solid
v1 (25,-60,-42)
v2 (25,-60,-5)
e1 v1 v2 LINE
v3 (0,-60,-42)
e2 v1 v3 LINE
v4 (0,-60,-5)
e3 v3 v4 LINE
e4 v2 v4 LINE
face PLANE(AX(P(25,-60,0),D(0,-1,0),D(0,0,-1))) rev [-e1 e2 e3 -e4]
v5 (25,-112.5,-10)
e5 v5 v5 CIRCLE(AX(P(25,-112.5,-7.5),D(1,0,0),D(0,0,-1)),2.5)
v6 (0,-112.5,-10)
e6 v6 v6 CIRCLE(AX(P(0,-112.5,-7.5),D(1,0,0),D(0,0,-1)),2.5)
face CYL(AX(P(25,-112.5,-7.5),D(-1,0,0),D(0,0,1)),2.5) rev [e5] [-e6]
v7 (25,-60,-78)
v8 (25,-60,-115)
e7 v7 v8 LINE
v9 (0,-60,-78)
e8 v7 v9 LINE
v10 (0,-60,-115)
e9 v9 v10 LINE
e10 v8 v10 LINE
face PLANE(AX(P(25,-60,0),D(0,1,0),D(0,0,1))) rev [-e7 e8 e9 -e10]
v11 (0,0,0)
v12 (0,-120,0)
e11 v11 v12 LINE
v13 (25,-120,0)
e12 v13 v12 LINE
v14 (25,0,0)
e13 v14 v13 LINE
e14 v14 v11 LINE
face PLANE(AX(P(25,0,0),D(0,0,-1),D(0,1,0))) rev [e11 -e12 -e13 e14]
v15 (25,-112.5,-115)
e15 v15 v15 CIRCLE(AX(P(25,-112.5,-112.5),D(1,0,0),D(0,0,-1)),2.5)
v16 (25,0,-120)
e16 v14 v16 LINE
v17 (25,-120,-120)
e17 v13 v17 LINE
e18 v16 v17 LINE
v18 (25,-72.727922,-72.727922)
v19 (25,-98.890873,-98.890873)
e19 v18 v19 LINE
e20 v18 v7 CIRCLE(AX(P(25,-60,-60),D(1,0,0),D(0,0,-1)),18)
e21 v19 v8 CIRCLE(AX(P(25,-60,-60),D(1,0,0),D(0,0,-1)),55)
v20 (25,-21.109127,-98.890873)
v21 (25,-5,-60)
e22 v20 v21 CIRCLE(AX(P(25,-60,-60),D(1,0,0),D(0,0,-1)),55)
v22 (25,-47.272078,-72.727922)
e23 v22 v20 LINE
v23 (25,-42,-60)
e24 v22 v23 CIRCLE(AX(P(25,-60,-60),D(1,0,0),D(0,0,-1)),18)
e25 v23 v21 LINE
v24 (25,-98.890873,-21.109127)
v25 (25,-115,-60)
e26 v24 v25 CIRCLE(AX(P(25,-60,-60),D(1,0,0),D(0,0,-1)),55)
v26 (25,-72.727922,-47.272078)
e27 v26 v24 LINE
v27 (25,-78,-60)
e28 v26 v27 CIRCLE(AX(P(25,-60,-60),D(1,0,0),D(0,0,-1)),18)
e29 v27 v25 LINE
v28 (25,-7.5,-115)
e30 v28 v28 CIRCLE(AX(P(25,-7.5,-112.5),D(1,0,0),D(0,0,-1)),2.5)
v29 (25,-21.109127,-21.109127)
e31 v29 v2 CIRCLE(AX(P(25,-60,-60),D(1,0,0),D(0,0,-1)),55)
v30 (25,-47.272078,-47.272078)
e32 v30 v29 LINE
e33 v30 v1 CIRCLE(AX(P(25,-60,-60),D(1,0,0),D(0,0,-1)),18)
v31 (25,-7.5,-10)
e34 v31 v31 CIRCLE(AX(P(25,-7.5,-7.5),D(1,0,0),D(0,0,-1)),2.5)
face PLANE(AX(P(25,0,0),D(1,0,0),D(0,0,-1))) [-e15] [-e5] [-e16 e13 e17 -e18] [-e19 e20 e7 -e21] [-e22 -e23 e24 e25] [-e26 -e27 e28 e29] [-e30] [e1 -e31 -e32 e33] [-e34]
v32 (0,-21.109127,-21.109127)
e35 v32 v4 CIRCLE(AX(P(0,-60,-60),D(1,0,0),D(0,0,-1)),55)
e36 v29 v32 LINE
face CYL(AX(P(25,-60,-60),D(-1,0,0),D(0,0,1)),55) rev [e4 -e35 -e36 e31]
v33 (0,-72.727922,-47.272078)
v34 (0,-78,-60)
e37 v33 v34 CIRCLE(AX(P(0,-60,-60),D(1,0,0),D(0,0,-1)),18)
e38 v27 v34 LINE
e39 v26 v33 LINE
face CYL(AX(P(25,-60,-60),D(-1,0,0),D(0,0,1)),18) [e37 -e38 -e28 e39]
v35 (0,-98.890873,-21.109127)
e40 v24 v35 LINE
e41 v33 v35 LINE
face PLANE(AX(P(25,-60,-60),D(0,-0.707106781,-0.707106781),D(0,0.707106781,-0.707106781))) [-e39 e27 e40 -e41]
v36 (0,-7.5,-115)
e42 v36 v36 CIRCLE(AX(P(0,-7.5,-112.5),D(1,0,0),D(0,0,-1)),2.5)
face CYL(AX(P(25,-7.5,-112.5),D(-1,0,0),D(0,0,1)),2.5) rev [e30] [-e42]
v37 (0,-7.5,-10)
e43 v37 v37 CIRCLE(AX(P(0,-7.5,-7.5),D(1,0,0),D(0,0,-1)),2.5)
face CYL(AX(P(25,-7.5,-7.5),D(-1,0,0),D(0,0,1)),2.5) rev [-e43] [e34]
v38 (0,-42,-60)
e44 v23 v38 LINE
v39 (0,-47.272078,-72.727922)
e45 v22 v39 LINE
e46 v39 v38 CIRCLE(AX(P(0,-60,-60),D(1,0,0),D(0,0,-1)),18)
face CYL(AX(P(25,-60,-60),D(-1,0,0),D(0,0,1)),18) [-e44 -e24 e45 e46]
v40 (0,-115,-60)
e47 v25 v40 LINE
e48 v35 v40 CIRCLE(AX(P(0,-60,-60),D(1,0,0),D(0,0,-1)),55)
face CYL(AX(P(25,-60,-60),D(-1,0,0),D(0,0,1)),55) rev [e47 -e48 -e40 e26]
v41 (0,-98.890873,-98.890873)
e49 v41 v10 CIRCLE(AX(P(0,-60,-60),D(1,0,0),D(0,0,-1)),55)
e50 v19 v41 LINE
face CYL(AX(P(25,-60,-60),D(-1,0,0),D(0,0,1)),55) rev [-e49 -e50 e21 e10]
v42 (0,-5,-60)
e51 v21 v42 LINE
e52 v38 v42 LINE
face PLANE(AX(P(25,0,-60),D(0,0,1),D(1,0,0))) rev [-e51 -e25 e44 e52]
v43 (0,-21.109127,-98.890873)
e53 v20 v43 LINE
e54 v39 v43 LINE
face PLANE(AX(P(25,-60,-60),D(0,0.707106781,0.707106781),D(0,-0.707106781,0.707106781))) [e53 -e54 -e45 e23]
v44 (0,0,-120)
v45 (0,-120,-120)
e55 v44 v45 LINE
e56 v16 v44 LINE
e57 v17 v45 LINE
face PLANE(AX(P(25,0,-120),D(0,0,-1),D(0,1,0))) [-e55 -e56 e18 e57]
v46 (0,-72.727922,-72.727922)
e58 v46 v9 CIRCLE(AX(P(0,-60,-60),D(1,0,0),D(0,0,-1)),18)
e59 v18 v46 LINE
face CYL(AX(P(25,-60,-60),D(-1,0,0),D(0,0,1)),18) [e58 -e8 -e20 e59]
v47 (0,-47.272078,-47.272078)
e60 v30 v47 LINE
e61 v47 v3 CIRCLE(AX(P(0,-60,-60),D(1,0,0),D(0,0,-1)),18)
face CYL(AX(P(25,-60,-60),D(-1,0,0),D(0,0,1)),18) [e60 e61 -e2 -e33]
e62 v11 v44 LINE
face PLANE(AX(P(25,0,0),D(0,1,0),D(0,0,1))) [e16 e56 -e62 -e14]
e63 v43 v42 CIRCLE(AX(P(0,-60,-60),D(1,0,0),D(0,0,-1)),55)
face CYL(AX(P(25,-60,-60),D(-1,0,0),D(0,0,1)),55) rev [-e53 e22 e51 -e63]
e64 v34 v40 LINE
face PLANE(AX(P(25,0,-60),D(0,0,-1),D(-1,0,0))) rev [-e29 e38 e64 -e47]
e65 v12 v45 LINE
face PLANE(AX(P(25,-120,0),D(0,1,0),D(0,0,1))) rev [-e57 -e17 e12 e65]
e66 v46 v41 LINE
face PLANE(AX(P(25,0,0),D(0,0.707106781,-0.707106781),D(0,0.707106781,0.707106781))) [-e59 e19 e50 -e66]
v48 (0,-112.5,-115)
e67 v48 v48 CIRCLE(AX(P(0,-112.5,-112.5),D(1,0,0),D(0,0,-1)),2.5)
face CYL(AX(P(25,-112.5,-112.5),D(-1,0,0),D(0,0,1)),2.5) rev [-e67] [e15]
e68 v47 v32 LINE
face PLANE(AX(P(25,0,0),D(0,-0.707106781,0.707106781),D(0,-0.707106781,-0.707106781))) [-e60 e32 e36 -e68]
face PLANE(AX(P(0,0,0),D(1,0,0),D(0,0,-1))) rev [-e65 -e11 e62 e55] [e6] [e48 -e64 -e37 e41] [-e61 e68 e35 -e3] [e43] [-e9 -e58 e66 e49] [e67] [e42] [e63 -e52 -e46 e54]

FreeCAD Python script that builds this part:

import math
import FreeCAD as App
import Part
import Sketcher

V = App.Vector

doc = App.newDocument("Part")
body = doc.addObject("PartDesign::Body", "Body")

# Sketch on YZ plane
sketch1 = body.newObject("Sketcher::SketchObject", "Sketch")
sketch1.AttachmentSupport = (doc.getObject("YZ_Plane"), [""])
sketch1.MapMode = "FlatFace"
sketch1.addGeometry([
    Part.LineSegment(V(0, 0, 0), V(-120, 0, 0)),  # 0
    Part.LineSegment(V(-120, 0, 0), V(-120, -120, 0)),  # 1
    Part.LineSegment(V(-120, -120, 0), V(0, -120, 0)),  # 2
    Part.LineSegment(V(0, -120, 0), V(0, 0, 0)),  # 3
    Part.Circle(V(-112.5, -7.5, 0), V(0, 0, 1), 2.5),  # 4
    Part.Circle(V(-112.5, -112.5, 0), V(0, 0, 1), 2.5),  # 5
    Part.Circle(V(-7.5, -7.5, 0), V(0, 0, 1), 2.5),  # 6
    Part.ArcOfCircle(Part.Circle(V(-60, -60, 0), V(0, 0, 1), 55), math.radians(-45), math.radians(0)),  # 7
    Part.LineSegment(V(-21.1, -98.9, 0), V(-47.3, -72.7, 0)),  # 8
    Part.ArcOfCircle(Part.Circle(V(-60, -60, 0), V(0, 0, 1), 18), math.radians(-45), math.radians(0)),  # 9
    Part.LineSegment(V(-42, -60, 0), V(-5, -60, 0)),  # 10
    Part.ArcOfCircle(Part.Circle(V(-60, -60, 0), V(0, 0, 1), 55), math.radians(45), math.radians(90)),  # 11
    Part.LineSegment(V(-21.1, -21.1, 0), V(-47.3, -47.3, 0)),  # 12
    Part.ArcOfCircle(Part.Circle(V(-60, -60, 0), V(0, 0, 1), 18), math.radians(45), math.radians(90)),  # 13
    Part.LineSegment(V(-60, -42, 0), V(-60, -5, 0)),  # 14
    Part.ArcOfCircle(Part.Circle(V(-60, -60, 0), V(0, 0, 1), 55), math.radians(135), math.radians(180)),  # 15
    Part.LineSegment(V(-98.9, -21.1, 0), V(-72.7, -47.3, 0)),  # 16
    Part.ArcOfCircle(Part.Circle(V(-60, -60, 0), V(0, 0, 1), 18), math.radians(135), math.radians(180)),  # 17
    Part.LineSegment(V(-78, -60, 0), V(-115, -60, 0)),  # 18
    Part.ArcOfCircle(Part.Circle(V(-60, -60, 0), V(0, 0, 1), 55), math.radians(-135), math.radians(-90)),  # 19
    Part.LineSegment(V(-98.9, -98.9, 0), V(-72.7, -72.7, 0)),  # 20
    Part.ArcOfCircle(Part.Circle(V(-60, -60, 0), V(0, 0, 1), 18), math.radians(-135), math.radians(-90)),  # 21
    Part.LineSegment(V(-60, -78, 0), V(-60, -115, 0)),  # 22
    Part.Circle(V(-7.5, -112.5, 0), V(0, 0, 1), 2.5),  # 23
], False)
sketch1.addConstraint([
    Sketcher.Constraint("Coincident", 0, 2, 1, 1),
    Sketcher.Constraint("Coincident", 1, 2, 2, 1),
    Sketcher.Constraint("Coincident", 2, 2, 3, 1),
    Sketcher.Constraint("Coincident", 3, 2, 0, 1),
    Sketcher.Constraint("Coincident", 7, 1, 8, 1),
    Sketcher.Constraint("Coincident", 8, 2, 9, 1),
    Sketcher.Constraint("Coincident", 9, 2, 10, 1),
    Sketcher.Constraint("Coincident", 10, 2, 7, 2),
    Sketcher.Constraint("Coincident", 11, 1, 12, 1),
    Sketcher.Constraint("Coincident", 12, 2, 13, 1),
    Sketcher.Constraint("Coincident", 13, 2, 14, 1),
    Sketcher.Constraint("Coincident", 14, 2, 11, 2),
    Sketcher.Constraint("Coincident", 15, 1, 16, 1),
    Sketcher.Constraint("Coincident", 16, 2, 17, 1),
    Sketcher.Constraint("Coincident", 17, 2, 18, 1),
    Sketcher.Constraint("Coincident", 18, 2, 15, 2),
    Sketcher.Constraint("Coincident", 19, 1, 20, 1),
    Sketcher.Constraint("Coincident", 20, 2, 21, 1),
    Sketcher.Constraint("Coincident", 21, 2, 22, 1),
    Sketcher.Constraint("Coincident", 22, 2, 19, 2),
    Sketcher.Constraint("Horizontal", 0),
    Sketcher.Constraint("Vertical", 1),
    Sketcher.Constraint("Horizontal", 2),
    Sketcher.Constraint("Vertical", 3),
    Sketcher.Constraint("Horizontal", 10),
    Sketcher.Constraint("Vertical", 14),
    Sketcher.Constraint("Horizontal", 18),
    Sketcher.Constraint("Vertical", 22),
    Sketcher.Constraint("Coincident", 3, 2, -1, 1),
    Sketcher.Constraint("Coincident", 9, 3, 7, 3),
    Sketcher.Constraint("Coincident", 11, 3, 7, 3),
    Sketcher.Constraint("Coincident", 13, 3, 7, 3),
    Sketcher.Constraint("Coincident", 15, 3, 7, 3),
    Sketcher.Constraint("Coincident", 17, 3, 7, 3),
    Sketcher.Constraint("Coincident", 19, 3, 7, 3),
    Sketcher.Constraint("Coincident", 21, 3, 7, 3),
    Sketcher.Constraint("Equal", 4, 5),
    Sketcher.Constraint("Equal", 5, 6),
    Sketcher.Constraint("Equal", 7, 11),
    Sketcher.Constraint("Equal", 9, 13),
    Sketcher.Constraint("Equal", 11, 15),
    Sketcher.Constraint("Equal", 13, 17),
    Sketcher.Constraint("Equal", 15, 19),
    Sketcher.Constraint("Equal", 17, 21),
    Sketcher.Constraint("Equal", 6, 23),
    Sketcher.Constraint("Perpendicular", 8, 12),
    Sketcher.Constraint("Perpendicular", 12, 16),
    Sketcher.Constraint("Perpendicular", 16, 20),
    Sketcher.Constraint("Horizontal", 4, 3, 6, 3),
    Sketcher.Constraint("Horizontal", 5, 3, 23, 3),
    Sketcher.Constraint("Horizontal", 21, 3, 9, 2),
    Sketcher.Constraint("Horizontal", 11, 1, 15, 1),
    Sketcher.Constraint("Horizontal", 12, 2, 16, 2),
    Sketcher.Constraint("Horizontal", 10, 2, 17, 2),
    Sketcher.Constraint("Horizontal", 7, 1, 19, 1),
    Sketcher.Constraint("Vertical", 4, 3, 5, 3),
    Sketcher.Constraint("Vertical", 6, 3, 23, 3),
    Sketcher.Constraint("Vertical", 7, 1, 11, 1),
    Sketcher.Constraint("Vertical", 21, 3, 13, 2),
    Sketcher.Constraint("Vertical", 14, 2, 21, 2),
    Sketcher.Constraint("Equal", 2, 1),
    Sketcher.Constraint("Diameter", 4, 5.0),
    Sketcher.Constraint("Radius", 7, 55.0),
    Sketcher.Constraint("Radius", 9, 18.0),
    Sketcher.Constraint("DistanceX", 0, 2, 0, 1, 120.0),
    Sketcher.Constraint("DistanceX", 7, 3, -1, 1, 60.0),
    Sketcher.Constraint("DistanceY", 7, 3, -1, 1, 60.0),
    Sketcher.Constraint("DistanceY", 5, 3, 4, 3, 105.0),
    Sketcher.Constraint("DistanceX", 4, 3, 6, 3, 105.0),
    Sketcher.Constraint("DistanceX", 4, 3, -1, 1, 112.5),
    Sketcher.Constraint("DistanceY", 4, 3, -1, 1, 7.5),
    Sketcher.Constraint("DistanceX", 7, 1, -1, 1, 21.109127),
])
pad1 = body.newObject("PartDesign::Pad", "Pad")
pad1.Profile = sketch1
pad1.Length = 25

doc.recompute()
